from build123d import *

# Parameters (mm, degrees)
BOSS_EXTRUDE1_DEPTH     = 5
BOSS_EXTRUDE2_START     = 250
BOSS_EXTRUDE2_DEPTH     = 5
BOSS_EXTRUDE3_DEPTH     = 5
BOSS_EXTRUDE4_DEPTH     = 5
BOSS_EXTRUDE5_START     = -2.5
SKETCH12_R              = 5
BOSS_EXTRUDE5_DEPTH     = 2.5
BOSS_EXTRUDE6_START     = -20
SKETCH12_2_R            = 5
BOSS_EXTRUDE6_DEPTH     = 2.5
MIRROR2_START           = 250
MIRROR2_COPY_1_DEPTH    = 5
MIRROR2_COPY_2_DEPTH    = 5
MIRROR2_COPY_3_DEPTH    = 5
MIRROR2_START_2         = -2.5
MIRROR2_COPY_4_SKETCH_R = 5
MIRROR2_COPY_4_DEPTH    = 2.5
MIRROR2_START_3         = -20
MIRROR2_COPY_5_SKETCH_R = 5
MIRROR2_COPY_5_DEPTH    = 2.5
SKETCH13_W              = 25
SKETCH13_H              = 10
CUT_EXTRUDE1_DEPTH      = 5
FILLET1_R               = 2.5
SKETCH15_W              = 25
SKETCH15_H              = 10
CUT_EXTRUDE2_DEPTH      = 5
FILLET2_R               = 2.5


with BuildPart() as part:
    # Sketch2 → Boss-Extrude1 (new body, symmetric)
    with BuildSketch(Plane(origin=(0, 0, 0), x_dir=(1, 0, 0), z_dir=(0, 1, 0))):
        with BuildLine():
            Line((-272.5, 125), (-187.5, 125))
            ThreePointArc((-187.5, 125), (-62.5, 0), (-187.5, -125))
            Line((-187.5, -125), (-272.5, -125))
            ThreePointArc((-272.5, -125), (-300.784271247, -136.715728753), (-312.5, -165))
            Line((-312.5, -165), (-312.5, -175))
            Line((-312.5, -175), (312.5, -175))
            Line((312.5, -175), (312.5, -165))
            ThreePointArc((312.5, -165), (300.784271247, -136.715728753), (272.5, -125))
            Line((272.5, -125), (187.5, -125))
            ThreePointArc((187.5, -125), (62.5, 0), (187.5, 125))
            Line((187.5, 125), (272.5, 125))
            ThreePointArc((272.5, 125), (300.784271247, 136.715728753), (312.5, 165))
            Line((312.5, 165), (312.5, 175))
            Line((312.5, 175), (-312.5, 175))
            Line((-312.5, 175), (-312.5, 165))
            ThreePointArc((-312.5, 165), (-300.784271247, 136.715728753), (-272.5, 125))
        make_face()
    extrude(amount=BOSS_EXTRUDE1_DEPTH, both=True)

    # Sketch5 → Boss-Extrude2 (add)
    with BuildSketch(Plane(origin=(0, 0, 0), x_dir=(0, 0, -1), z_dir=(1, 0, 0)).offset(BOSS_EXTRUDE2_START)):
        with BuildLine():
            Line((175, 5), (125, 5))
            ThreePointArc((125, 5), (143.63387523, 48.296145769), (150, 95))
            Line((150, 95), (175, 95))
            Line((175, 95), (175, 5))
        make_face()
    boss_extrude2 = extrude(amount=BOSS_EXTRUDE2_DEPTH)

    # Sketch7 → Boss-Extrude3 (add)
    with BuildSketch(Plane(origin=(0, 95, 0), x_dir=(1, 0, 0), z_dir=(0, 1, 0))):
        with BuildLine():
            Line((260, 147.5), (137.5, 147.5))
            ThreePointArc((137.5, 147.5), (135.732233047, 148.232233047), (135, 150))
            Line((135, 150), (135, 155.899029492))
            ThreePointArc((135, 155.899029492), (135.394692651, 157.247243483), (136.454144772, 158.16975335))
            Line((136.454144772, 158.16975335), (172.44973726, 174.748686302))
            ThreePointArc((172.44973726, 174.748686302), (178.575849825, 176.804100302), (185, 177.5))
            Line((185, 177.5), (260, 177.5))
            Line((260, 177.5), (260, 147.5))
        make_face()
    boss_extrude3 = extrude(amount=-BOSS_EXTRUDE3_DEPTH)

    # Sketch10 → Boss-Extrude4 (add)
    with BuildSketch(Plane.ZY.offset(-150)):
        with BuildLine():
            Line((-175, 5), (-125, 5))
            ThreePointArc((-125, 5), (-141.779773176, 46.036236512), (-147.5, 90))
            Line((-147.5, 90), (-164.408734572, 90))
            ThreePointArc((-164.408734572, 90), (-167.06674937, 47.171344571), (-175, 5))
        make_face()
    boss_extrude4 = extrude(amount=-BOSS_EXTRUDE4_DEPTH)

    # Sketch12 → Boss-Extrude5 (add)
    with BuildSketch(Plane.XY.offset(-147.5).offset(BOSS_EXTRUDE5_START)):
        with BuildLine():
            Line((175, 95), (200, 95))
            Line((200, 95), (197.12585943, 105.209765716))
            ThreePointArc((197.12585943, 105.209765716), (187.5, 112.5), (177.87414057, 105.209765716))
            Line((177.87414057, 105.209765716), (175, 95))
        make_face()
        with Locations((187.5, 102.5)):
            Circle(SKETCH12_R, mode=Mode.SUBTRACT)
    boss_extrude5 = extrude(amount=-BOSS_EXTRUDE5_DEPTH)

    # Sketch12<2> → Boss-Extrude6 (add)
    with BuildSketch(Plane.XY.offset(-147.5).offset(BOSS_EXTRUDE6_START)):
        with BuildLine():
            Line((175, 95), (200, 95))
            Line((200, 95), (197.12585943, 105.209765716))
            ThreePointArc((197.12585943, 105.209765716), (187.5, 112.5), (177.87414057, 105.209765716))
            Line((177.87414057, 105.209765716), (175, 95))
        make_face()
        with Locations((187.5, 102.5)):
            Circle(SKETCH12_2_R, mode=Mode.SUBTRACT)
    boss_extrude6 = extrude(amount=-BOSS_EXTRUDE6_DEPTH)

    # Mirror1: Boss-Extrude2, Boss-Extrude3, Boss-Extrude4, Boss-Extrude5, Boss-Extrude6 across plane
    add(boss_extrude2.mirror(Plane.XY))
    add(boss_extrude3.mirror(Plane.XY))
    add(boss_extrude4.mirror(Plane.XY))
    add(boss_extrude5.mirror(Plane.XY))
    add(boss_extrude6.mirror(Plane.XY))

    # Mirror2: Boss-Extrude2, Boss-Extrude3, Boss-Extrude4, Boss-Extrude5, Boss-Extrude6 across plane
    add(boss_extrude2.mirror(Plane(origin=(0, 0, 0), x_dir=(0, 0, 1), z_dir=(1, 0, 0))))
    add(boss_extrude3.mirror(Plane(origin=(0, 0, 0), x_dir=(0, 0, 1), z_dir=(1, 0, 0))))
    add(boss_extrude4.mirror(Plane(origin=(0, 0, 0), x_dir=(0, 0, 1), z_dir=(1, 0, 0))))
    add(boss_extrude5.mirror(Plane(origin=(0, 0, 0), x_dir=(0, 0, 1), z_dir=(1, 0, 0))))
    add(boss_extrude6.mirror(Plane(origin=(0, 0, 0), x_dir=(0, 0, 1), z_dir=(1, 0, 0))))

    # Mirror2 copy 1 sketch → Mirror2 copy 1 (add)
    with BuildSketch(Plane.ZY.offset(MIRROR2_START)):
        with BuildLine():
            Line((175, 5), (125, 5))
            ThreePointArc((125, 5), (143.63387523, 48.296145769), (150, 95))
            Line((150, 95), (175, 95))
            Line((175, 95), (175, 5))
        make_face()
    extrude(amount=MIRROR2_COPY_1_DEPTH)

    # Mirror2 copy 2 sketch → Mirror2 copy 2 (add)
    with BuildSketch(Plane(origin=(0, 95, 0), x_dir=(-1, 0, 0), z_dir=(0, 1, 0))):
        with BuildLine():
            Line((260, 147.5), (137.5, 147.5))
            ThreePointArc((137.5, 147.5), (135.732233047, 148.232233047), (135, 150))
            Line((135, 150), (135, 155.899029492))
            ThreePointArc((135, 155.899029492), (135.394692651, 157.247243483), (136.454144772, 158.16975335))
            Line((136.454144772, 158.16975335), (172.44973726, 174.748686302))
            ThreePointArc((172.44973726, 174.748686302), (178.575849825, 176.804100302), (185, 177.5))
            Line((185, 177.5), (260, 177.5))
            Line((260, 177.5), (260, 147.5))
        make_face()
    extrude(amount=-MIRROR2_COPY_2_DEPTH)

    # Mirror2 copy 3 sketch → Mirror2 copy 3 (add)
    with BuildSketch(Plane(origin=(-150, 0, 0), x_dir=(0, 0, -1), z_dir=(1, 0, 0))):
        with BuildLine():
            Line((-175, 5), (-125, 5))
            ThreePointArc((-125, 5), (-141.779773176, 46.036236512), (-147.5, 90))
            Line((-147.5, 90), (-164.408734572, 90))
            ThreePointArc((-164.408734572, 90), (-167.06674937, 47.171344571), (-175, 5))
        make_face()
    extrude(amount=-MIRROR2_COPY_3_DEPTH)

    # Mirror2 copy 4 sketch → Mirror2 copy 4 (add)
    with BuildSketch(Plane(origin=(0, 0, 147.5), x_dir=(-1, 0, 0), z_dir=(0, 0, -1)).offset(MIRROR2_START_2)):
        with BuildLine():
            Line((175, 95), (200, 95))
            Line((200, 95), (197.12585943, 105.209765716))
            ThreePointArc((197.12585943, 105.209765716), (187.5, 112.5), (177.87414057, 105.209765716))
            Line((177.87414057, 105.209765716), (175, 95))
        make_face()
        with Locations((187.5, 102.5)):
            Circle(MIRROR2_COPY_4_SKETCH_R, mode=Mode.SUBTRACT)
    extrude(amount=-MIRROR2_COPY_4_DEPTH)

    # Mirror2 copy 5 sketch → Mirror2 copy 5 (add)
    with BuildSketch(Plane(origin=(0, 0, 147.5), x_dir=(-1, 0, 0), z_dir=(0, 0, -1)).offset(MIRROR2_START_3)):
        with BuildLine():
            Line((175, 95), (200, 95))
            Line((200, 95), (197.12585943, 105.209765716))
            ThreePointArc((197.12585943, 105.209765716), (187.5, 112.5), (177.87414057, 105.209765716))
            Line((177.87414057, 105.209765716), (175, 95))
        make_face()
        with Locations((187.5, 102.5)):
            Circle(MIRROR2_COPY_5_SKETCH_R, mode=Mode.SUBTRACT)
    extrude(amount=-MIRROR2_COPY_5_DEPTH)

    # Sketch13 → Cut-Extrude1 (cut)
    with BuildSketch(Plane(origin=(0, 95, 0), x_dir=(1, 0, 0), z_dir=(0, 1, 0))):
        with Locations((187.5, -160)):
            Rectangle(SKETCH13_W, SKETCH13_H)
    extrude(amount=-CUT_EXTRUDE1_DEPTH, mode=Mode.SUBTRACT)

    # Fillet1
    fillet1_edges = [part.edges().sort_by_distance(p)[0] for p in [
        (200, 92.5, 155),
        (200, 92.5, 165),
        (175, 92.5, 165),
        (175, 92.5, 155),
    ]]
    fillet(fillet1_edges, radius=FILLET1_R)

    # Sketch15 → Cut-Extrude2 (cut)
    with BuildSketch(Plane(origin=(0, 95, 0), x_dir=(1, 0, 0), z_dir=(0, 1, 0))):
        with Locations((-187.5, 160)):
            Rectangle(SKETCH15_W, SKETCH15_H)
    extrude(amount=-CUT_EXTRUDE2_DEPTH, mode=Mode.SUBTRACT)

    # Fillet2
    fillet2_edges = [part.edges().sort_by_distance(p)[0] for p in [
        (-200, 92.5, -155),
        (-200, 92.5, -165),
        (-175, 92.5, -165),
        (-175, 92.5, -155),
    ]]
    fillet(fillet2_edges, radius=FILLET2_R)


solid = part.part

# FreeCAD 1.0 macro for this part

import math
import FreeCAD as App
import Part
import Sketcher

V = App.Vector
Q = App.Units.Quantity


def edges_at(feature, points):
    """Names of the edges that pass closest to the given points."""
    edges = feature.Shape.Edges
    near = lambda p: min(range(len(edges)), key=lambda i: edges[i].distToShape(Part.Vertex(*p))[0])
    return sorted({f"Edge{near(p) + 1}" for p in points})

doc = App.newDocument("Part")
params = doc.addObject("Spreadsheet::Sheet", "Params")
for row, (alias, value) in enumerate([
    ("sketch1_radius", "125 mm"),
    ("sketch1_radius2", "40 mm"),
    ("sketch1_width", "85 mm"),
    ("sketch1_width2", "625 mm"),
    ("sketch1_height", "10 mm"),
    ("pad1_length", "10 mm"),
    ("sketch2_radius", "174.5 mm"),
    ("sketch2_width", "90 mm"),
    ("sketch2_height", "50 mm"),
    ("pad2_length", "5 mm"),
    ("sketch3_radius", "30 mm"),
    ("sketch3_radius2", "2.5 mm"),
    ("sketch3_width", "75 mm"),
    ("sketch3_width2", "122.5 mm"),
    ("pad3_length", "5 mm"),
    ("sketch4_height", "50 mm"),
    ("pad4_length", "5 mm"),
    ("sketch5_diameter", "10 mm"),
    ("sketch5_radius", "10 mm"),
    ("sketch5_width", "25 mm"),
    ("pad5_length", "2.5 mm"),
    ("sketch6_diameter", "10 mm"),
    ("sketch6_radius", "10 mm"),
    ("sketch6_width", "25 mm"),
    ("pad6_length", "2.5 mm"),
    ("sketch7_radius", "174.5 mm"),
    ("sketch7_width", "90 mm"),
    ("sketch7_height", "50 mm"),
    ("pad7_length", "5 mm"),
    ("sketch8_radius", "30 mm"),
    ("sketch8_radius2", "2.5 mm"),
    ("sketch8_width", "75 mm"),
    ("sketch8_width2", "122.5 mm"),
    ("pad8_length", "5 mm"),
    ("sketch9_height", "50 mm"),
    ("pad9_length", "5 mm"),
    ("sketch10_diameter", "10 mm"),
    ("sketch10_radius", "10 mm"),
    ("sketch10_width", "25 mm"),
    ("pad10_length", "2.5 mm"),
    ("sketch11_diameter", "10 mm"),
    ("sketch11_radius", "10 mm"),
    ("sketch11_width", "25 mm"),
    ("pad11_length", "2.5 mm"),
    ("sketch12_width", "25 mm"),
    ("sketch12_height", "10 mm"),
    ("pocket1_length", "5 mm"),
    ("fillet_radius", "2.5 mm"),
    ("sketch13_width", "25 mm"),
    ("sketch13_height", "10 mm"),
    ("pocket2_length", "5 mm"),
    ("fillet2_radius", "2.5 mm"),
], start=1):
    params.set(f"A{row}", alias)
    params.set(f"B{row}", "=" + value)
    params.setAlias(f"B{row}", alias)

body = doc.addObject("PartDesign::Body", "Body")

# Sketch on XZ plane
sketch1 = body.newObject("Sketcher::SketchObject", "Sketch")
sketch1.AttachmentSupport = (doc.getObject("XZ_Plane"), [""])
sketch1.MapMode = "FlatFace"
sketch1.addGeometry(Part.LineSegment(V(-272, -125, 0), V(-188, -125, 0)), False)
sketch1.addGeometry(Part.ArcOfCircle(Part.Circle(V(-188, 0, 0), V(0, 0, 1), 125), math.radians(-90), math.radians(90)), False)
sketch1.addGeometry(Part.LineSegment(V(-188, 125, 0), V(-272, 125, 0)), False)
sketch1.addGeometry(Part.ArcOfCircle(Part.Circle(V(-272, 165, 0), V(0, 0, 1), 40), math.radians(-180), math.radians(-90)), False)
sketch1.addGeometry(Part.LineSegment(V(-312, 165, 0), V(-312, 175, 0)), False)
sketch1.addGeometry(Part.LineSegment(V(-312, 175, 0), V(312, 175, 0)), False)
sketch1.addGeometry(Part.LineSegment(V(312, 175, 0), V(312, 165, 0)), False)
sketch1.addGeometry(Part.ArcOfCircle(Part.Circle(V(272, 165, 0), V(0, 0, 1), 40), math.radians(-90), math.radians(0)), False)
sketch1.addGeometry(Part.LineSegment(V(272, 125, 0), V(188, 125, 0)), False)
sketch1.addGeometry(Part.ArcOfCircle(Part.Circle(V(188, 0, 0), V(0, 0, 1), 125), math.radians(90), math.radians(270)), False)
sketch1.addGeometry(Part.LineSegment(V(188, -125, 0), V(272, -125, 0)), False)
sketch1.addGeometry(Part.ArcOfCircle(Part.Circle(V(272, -165, 0), V(0, 0, 1), 40), math.radians(0), math.radians(90)), False)
sketch1.addGeometry(Part.LineSegment(V(312, -165, 0), V(312, -175, 0)), False)
sketch1.addGeometry(Part.LineSegment(V(312, -175, 0), V(-312, -175, 0)), False)
sketch1.addGeometry(Part.LineSegment(V(-312, -175, 0), V(-312, -165, 0)), False)
sketch1.addGeometry(Part.ArcOfCircle(Part.Circle(V(-272, -165, 0), V(0, 0, 1), 40), math.radians(90), math.radians(180)), False)
sketch1.addConstraint(Sketcher.Constraint("Tangent", 0, 2, 1, 1))
sketch1.addConstraint(Sketcher.Constraint("Tangent", 1, 2, 2, 1))
sketch1.addConstraint(Sketcher.Constraint("Tangent", 2, 2, 3, 2))
sketch1.addConstraint(Sketcher.Constraint("Tangent", 3, 1, 4, 1))
sketch1.addConstraint(Sketcher.Constraint("Coincident", 4, 2, 5, 1))
sketch1.addConstraint(Sketcher.Constraint("Coincident", 5, 2, 6, 1))
sketch1.addConstraint(Sketcher.Constraint("Tangent", 6, 2, 7, 2))
sketch1.addConstraint(Sketcher.Constraint("Tangent", 7, 1, 8, 1))
sketch1.addConstraint(Sketcher.Constraint("Tangent", 8, 2, 9, 1))
sketch1.addConstraint(Sketcher.Constraint("Tangent", 9, 2, 10, 1))
sketch1.addConstraint(Sketcher.Constraint("Tangent", 10, 2, 11, 2))
sketch1.addConstraint(Sketcher.Constraint("Tangent", 11, 1, 12, 1))
sketch1.addConstraint(Sketcher.Constraint("Coincident", 12, 2, 13, 1))
sketch1.addConstraint(Sketcher.Constraint("Coincident", 13, 2, 14, 1))
sketch1.addConstraint(Sketcher.Constraint("Tangent", 14, 2, 15, 2))
sketch1.addConstraint(Sketcher.Constraint("Tangent", 15, 1, 0, 1))
sketch1.addConstraint(Sketcher.Constraint("Horizontal", 0))
sketch1.addConstraint(Sketcher.Constraint("Horizontal", 2))
sketch1.addConstraint(Sketcher.Constraint("Vertical", 4))
sketch1.addConstraint(Sketcher.Constraint("Horizontal", 5))
sketch1.addConstraint(Sketcher.Constraint("Vertical", 6))
sketch1.addConstraint(Sketcher.Constraint("Horizontal", 8))
sketch1.addConstraint(Sketcher.Constraint("Horizontal", 10))
sketch1.addConstraint(Sketcher.Constraint("Vertical", 12))
sketch1.addConstraint(Sketcher.Constraint("Horizontal", 13))
sketch1.addConstraint(Sketcher.Constraint("Vertical", 14))
sketch1.addConstraint(Sketcher.Constraint("Equal", 3, 7))
sketch1.addConstraint(Sketcher.Constraint("Equal", 1, 9))
sketch1.addConstraint(Sketcher.Constraint("Equal", 7, 11))
sketch1.addConstraint(Sketcher.Constraint("Equal", 11, 15))
sketch1.addConstraint(Sketcher.Constraint("Symmetric", 1, 3, 9, 3, -1, 1))
sketch1.addConstraint(Sketcher.Constraint("Symmetric", 4, 2, 12, 2, -1, 1))
sketch1.addConstraint(Sketcher.Constraint("Symmetric", 3, 3, 7, 3, -2))
sketch1.addConstraint(Sketcher.Constraint("Vertical", 3, 3, 15, 3))
sketch1.addConstraint(Sketcher.Constraint("Radius", 1, Q("125 mm")))
sketch1.addConstraint(Sketcher.Constraint("Radius", 3, Q("40 mm")))
sketch1.addConstraint(Sketcher.Constraint("DistanceX", 0, 1, 0, 2, Q("85 mm")))
sketch1.addConstraint(Sketcher.Constraint("DistanceX", 5, 1, 5, 2, Q("625 mm")))
sketch1.addConstraint(Sketcher.Constraint("DistanceY", 4, 1, 4, 2, Q("10 mm")))
sketch1.setExpression("Constraints[34]", "Params.sketch1_radius")
sketch1.setExpression("Constraints[35]", "Params.sketch1_radius2")
sketch1.setExpression("Constraints[36]", "Params.sketch1_width")
sketch1.setExpression("Constraints[37]", "Params.sketch1_width2")
sketch1.setExpression("Constraints[38]", "Params.sketch1_height")
pad1 = body.newObject("PartDesign::Pad", "Pad")
pad1.Profile = sketch1
pad1.setExpression("Length", "Params.pad1_length")
pad1.Midplane = True

# Sketch on YZ plane
sketch2 = body.newObject("Sketcher::SketchObject", "Sketch001")
sketch2.AttachmentSupport = (doc.getObject("YZ_Plane"), [""])
sketch2.MapMode = "FlatFace"
sketch2.AttachmentOffset = App.Placement(V(0, 0, 250), App.Rotation())
sketch2.addGeometry(Part.LineSegment(V(5, -125, 0), V(5, -175, 0)), False)
sketch2.addGeometry(Part.LineSegment(V(5, -175, 0), V(95, -175, 0)), False)
sketch2.addGeometry(Part.LineSegment(V(95, -175, 0), V(95, -150, 0)), False)
sketch2.addGeometry(Part.ArcOfCircle(Part.Circle(V(95, 25, 0), V(0, 0, 1), 175), math.radians(-121), math.radians(-90)), False)
sketch2.addConstraint(Sketcher.Constraint("Coincident", 0, 2, 1, 1))
sketch2.addConstraint(Sketcher.Constraint("Coincident", 1, 2, 2, 1))
sketch2.addConstraint(Sketcher.Constraint("Coincident", 2, 2, 3, 2))
sketch2.addConstraint(Sketcher.Constraint("Coincident", 3, 1, 0, 1))
sketch2.addConstraint(Sketcher.Constraint("Vertical", 0))
sketch2.addConstraint(Sketcher.Constraint("Horizontal", 1))
sketch2.addConstraint(Sketcher.Constraint("Vertical", 2))
sketch2.addConstraint(Sketcher.Constraint("Vertical", 3, 3, 1, 2))
sketch2.addConstraint(Sketcher.Constraint("Radius", 3, Q("174.5 mm")))
sketch2.addConstraint(Sketcher.Constraint("DistanceX", 1, 1, 1, 2, Q("90 mm")))
sketch2.addConstraint(Sketcher.Constraint("DistanceY", 0, 2, 0, 1, Q("50 mm")))
sketch2.addConstraint(Sketcher.Constraint("DistanceX", -1, 1, 3, 3, Q("95 mm")))
sketch2.addConstraint(Sketcher.Constraint("DistanceY", 0, 2, -1, 1, Q("175 mm")))
sketch2.setExpression("Constraints[8]", "Params.sketch2_radius")
sketch2.setExpression("Constraints[9]", "Params.sketch2_width")
sketch2.setExpression("Constraints[10]", "Params.sketch2_height")
pad2 = body.newObject("PartDesign::Pad", "Pad001")
pad2.Profile = sketch2
pad2.setExpression("Length", "Params.pad2_length")

# Sketch on XZ plane
sketch3 = body.newObject("Sketcher::SketchObject", "Sketch002")
sketch3.AttachmentSupport = (doc.getObject("XZ_Plane"), [""])
sketch3.MapMode = "FlatFace"
sketch3.AttachmentOffset = App.Placement(V(0, 0, -95), App.Rotation())
sketch3.addGeometry(Part.LineSegment(V(137.5, -147.5, 0), V(260, -147.5, 0)), False)
sketch3.addGeometry(Part.LineSegment(V(260, -147.5, 0), V(260, -177.5, 0)), False)
sketch3.addGeometry(Part.LineSegment(V(260, -177.5, 0), V(185, -177.5, 0)), False)
sketch3.addGeometry(Part.ArcOfCircle(Part.Circle(V(185, -147.5, 0), V(0, 0, 1), 30), math.radians(-115), math.radians(-90)), False)
sketch3.addGeometry(Part.LineSegment(V(172.4, -174.7, 0), V(136.5, -158.2, 0)), False)
sketch3.addGeometry(Part.ArcOfCircle(Part.Circle(V(137.5, -155.9, 0), V(0, 0, 1), 2.5), math.radians(180), math.radians(245)), False)
sketch3.addGeometry(Part.LineSegment(V(135, -155.9, 0), V(135, -150, 0)), False)
sketch3.addGeometry(Part.ArcOfCircle(Part.Circle(V(137.5, -150, 0), V(0, 0, 1), 2.5), math.radians(90), math.radians(180)), False)
sketch3.addConstraint(Sketcher.Constraint("Coincident", 0, 2, 1, 1))
sketch3.addConstraint(Sketcher.Constraint("Coincident", 1, 2, 2, 1))
sketch3.addConstraint(Sketcher.Constraint("Tangent", 2, 2, 3, 2))
sketch3.addConstraint(Sketcher.Constraint("Tangent", 3, 1, 4, 1))
sketch3.addConstraint(Sketcher.Constraint("Tangent", 4, 2, 5, 2))
sketch3.addConstraint(Sketcher.Constraint("Tangent", 5, 1, 6, 1))
sketch3.addConstraint(Sketcher.Constraint("Tangent", 6, 2, 7, 2))
sketch3.addConstraint(Sketcher.Constraint("Tangent", 7, 1, 0, 1))
sketch3.addConstraint(Sketcher.Constraint("Horizontal", 0))
sketch3.addConstraint(Sketcher.Constraint("Vertical", 1))
sketch3.addConstraint(Sketcher.Constraint("Horizontal", 2))
sketch3.addConstraint(Sketcher.Constraint("Vertical", 6))
sketch3.addConstraint(Sketcher.Constraint("Equal", 5, 7))
sketch3.addConstraint(Sketcher.Constraint("Horizontal", 3, 3, 0, 2))
sketch3.addConstraint(Sketcher.Constraint("Radius", 3, Q("30 mm")))
sketch3.addConstraint(Sketcher.Constraint("Radius", 5, Q("2.5 mm")))
sketch3.addConstraint(Sketcher.Constraint("DistanceX", 2, 2, 2, 1, Q("75 mm")))
sketch3.addConstraint(Sketcher.Constraint("DistanceX", 0, 1, 0, 2, Q("122.5 mm")))
sketch3.addConstraint(Sketcher.Constraint("DistanceX", -1, 1, 3, 3, Q("185 mm")))
sketch3.addConstraint(Sketcher.Constraint("DistanceY", 7, 3, -1, 1, Q("150 mm")))
sketch3.addConstraint(Sketcher.Constraint("DistanceY", 6, 1, 6, 2, Q("5.899029 mm")))
sketch3.setExpression("Constraints[14]", "Params.sketch3_radius")
sketch3.setExpression("Constraints[15]", "Params.sketch3_radius2")
sketch3.setExpression("Constraints[16]", "Params.sketch3_width")
sketch3.setExpression("Constraints[17]", "Params.sketch3_width2")
pad3 = body.newObject("PartDesign::Pad", "Pad002")
pad3.Profile = sketch3
pad3.setExpression("Length", "Params.pad3_length")

# Sketch on YZ plane
sketch4 = body.newObject("Sketcher::SketchObject", "Sketch003")
sketch4.AttachmentSupport = (doc.getObject("YZ_Plane"), [""])
sketch4.MapMode = "FlatFace"
sketch4.AttachmentOffset = App.Placement(V(0, 0, 150), App.Rotation())
sketch4.addGeometry(Part.LineSegment(V(5, -175, 0), V(5, -125, 0)), False)
sketch4.addGeometry(Part.ArcOfCircle(Part.Circle(V(90, 24, 0), V(0, 0, 1), 172), math.radians(-120), math.radians(-90)), False)
sketch4.addGeometry(Part.LineSegment(V(90, -148, 0), V(90, -164, 0)), False)
sketch4.addGeometry(Part.ArcOfCircle(Part.Circle(V(90, -511, 0), V(0, 0, 1), 346), math.radians(90), math.radians(104.21)), False)
sketch4.addConstraint(Sketcher.Constraint("Coincident", 0, 2, 1, 1))
sketch4.addConstraint(Sketcher.Constraint("Coincident", 1, 2, 2, 1))
sketch4.addConstraint(Sketcher.Constraint("Coincident", 2, 2, 3, 1))
sketch4.addConstraint(Sketcher.Constraint("Coincident", 3, 2, 0, 1))
sketch4.addConstraint(Sketcher.Constraint("Vertical", 0))
sketch4.addConstraint(Sketcher.Constraint("Vertical", 2))
sketch4.addConstraint(Sketcher.Constraint("Vertical", 1, 3, 3, 3))
sketch4.addConstraint(Sketcher.Constraint("Vertical", 3, 3, 1, 2))
sketch4.addConstraint(Sketcher.Constraint("DistanceY", 0, 1, 0, 2, Q("50 mm")))
sketch4.addConstraint(Sketcher.Constraint("DistanceX", -1, 1, 1, 3, Q("90 mm")))
sketch4.addConstraint(Sketcher.Constraint("DistanceX", -1, 1, 0, 2, Q("5 mm")))
sketch4.addConstraint(Sketcher.Constraint("DistanceY", 0, 2, -1, 1, Q("125 mm")))
sketch4.addConstraint(Sketcher.Constraint("DistanceY", 1, 2, -1, 1, Q("147.5 mm")))
sketch4.addConstraint(Sketcher.Constraint("Radius", 3, Q("346.378577 mm")))
sketch4.setExpression("Constraints[8]", "Params.sketch4_height")
pad4 = body.newObject("PartDesign::Pad", "Pad003")
pad4.Profile = sketch4
pad4.setExpression("Length", "Params.pad4_length")

# Sketch on XY plane
sketch5 = body.newObject("Sketcher::SketchObject", "Sketch004")
sketch5.AttachmentSupport = (doc.getObject("XY_Plane"), [""])
sketch5.MapMode = "FlatFace"
sketch5.AttachmentOffset = App.Placement(V(0, 0, -150), App.Rotation())
sketch5.addGeometry(Part.LineSegment(V(175, 95, 0), V(200, 95, 0)), False)
sketch5.addGeometry(Part.LineSegment(V(200, 95, 0), V(197, 105, 0)), False)
sketch5.addGeometry(Part.ArcOfCircle(Part.Circle(V(188, 102, 0), V(0, 0, 1), 10), math.radians(16), math.radians(164)), False)
sketch5.addGeometry(Part.LineSegment(V(178, 105, 0), V(175, 95, 0)), False)
sketch5.addGeometry(Part.Circle(V(188, 102, 0), V(0, 0, 1), 5), False)
sketch5.addConstraint(Sketcher.Constraint("Coincident", 0, 2, 1, 1))
sketch5.addConstraint(Sketcher.Constraint("Tangent", 1, 2, 2, 1))
sketch5.addConstraint(Sketcher.Constraint("Tangent", 2, 2, 3, 1))
sketch5.addConstraint(Sketcher.Constraint("Coincident", 3, 2, 0, 1))
sketch5.addConstraint(Sketcher.Constraint("Horizontal", 0))
sketch5.addConstraint(Sketcher.Constraint("Coincident", 4, 3, 2, 3))
sketch5.addConstraint(Sketcher.Constraint("Horizontal", 1, 2, 2, 2))
sketch5.addConstraint(Sketcher.Constraint("Diameter", 4, Q("10 mm")))
sketch5.addConstraint(Sketcher.Constraint("Radius", 2, Q("10 mm")))
sketch5.addConstraint(Sketcher.Constraint("DistanceX", 0, 1, 0, 2, Q("25 mm")))
sketch5.addConstraint(Sketcher.Constraint("DistanceX", -1, 1, 0, 2, Q("200 mm")))
sketch5.addConstraint(Sketcher.Constraint("DistanceY", -1, 1, 0, 2, Q("95 mm")))
sketch5.addConstraint(Sketcher.Constraint("DistanceY", -1, 1, 2, 3, Q("102.5 mm")))
sketch5.setExpression("Constraints[7]", "Params.sketch5_diameter")
sketch5.setExpression("Constraints[8]", "Params.sketch5_radius")
sketch5.setExpression("Constraints[9]", "Params.sketch5_width")
pad5 = body.newObject("PartDesign::Pad", "Pad004")
pad5.Profile = sketch5
pad5.setExpression("Length", "Params.pad5_length")
pad5.Reversed = True

# Sketch on XY plane
sketch6 = body.newObject("Sketcher::SketchObject", "Sketch005")
sketch6.AttachmentSupport = (doc.getObject("XY_Plane"), [""])
sketch6.MapMode = "FlatFace"
sketch6.AttachmentOffset = App.Placement(V(0, 0, -167.5), App.Rotation())
sketch6.addGeometry(Part.LineSegment(V(175, 95, 0), V(200, 95, 0)), False)
sketch6.addGeometry(Part.LineSegment(V(200, 95, 0), V(197, 105, 0)), False)
sketch6.addGeometry(Part.ArcOfCircle(Part.Circle(V(188, 102, 0), V(0, 0, 1), 10), math.radians(16), math.radians(164)), False)
sketch6.addGeometry(Part.LineSegment(V(178, 105, 0), V(175, 95, 0)), False)
sketch6.addGeometry(Part.Circle(V(188, 102, 0), V(0, 0, 1), 5), False)
sketch6.addConstraint(Sketcher.Constraint("Coincident", 0, 2, 1, 1))
sketch6.addConstraint(Sketcher.Constraint("Tangent", 1, 2, 2, 1))
sketch6.addConstraint(Sketcher.Constraint("Tangent", 2, 2, 3, 1))
sketch6.addConstraint(Sketcher.Constraint("Coincident", 3, 2, 0, 1))
sketch6.addConstraint(Sketcher.Constraint("Horizontal", 0))
sketch6.addConstraint(Sketcher.Constraint("Coincident", 4, 3, 2, 3))
sketch6.addConstraint(Sketcher.Constraint("Horizontal", 1, 2, 2, 2))
sketch6.addConstraint(Sketcher.Constraint("Diameter", 4, Q("10 mm")))
sketch6.addConstraint(Sketcher.Constraint("Radius", 2, Q("10 mm")))
sketch6.addConstraint(Sketcher.Constraint("DistanceX", 0, 1, 0, 2, Q("25 mm")))
sketch6.addConstraint(Sketcher.Constraint("DistanceX", -1, 1, 0, 2, Q("200 mm")))
sketch6.addConstraint(Sketcher.Constraint("DistanceY", -1, 1, 0, 2, Q("95 mm")))
sketch6.addConstraint(Sketcher.Constraint("DistanceY", -1, 1, 2, 3, Q("102.5 mm")))
sketch6.setExpression("Constraints[7]", "Params.sketch6_diameter")
sketch6.setExpression("Constraints[8]", "Params.sketch6_radius")
sketch6.setExpression("Constraints[9]", "Params.sketch6_width")
pad6 = body.newObject("PartDesign::Pad", "Pad005")
pad6.Profile = sketch6
pad6.setExpression("Length", "Params.pad6_length")
pad6.Reversed = True
doc.recompute()

mirrored = body.newObject("PartDesign::Mirrored", "Mirrored")
mirrored.Originals = [pad2, pad3, pad4, pad5, pad6]
mirrored.MirrorPlane = (doc.getObject("XY_Plane"), [""])
body.Tip = mirrored
doc.recompute()

mirrored2 = body.newObject("PartDesign::Mirrored", "Mirrored001")
mirrored2.Originals = [pad2, pad3, pad4, pad5, pad6]
mirrored2.MirrorPlane = (doc.getObject("YZ_Plane"), [""])
body.Tip = mirrored2

# Sketch on YZ plane
sketch7 = body.newObject("Sketcher::SketchObject", "Sketch006")
sketch7.AttachmentSupport = (doc.getObject("YZ_Plane"), [""])
sketch7.MapMode = "FlatFace"
sketch7.AttachmentOffset = App.Placement(V(0, 0, -250), App.Rotation())
sketch7.addGeometry(Part.LineSegment(V(5, 125, 0), V(5, 175, 0)), False)
sketch7.addGeometry(Part.LineSegment(V(5, 175, 0), V(95, 175, 0)), False)
sketch7.addGeometry(Part.LineSegment(V(95, 175, 0), V(95, 150, 0)), False)
sketch7.addGeometry(Part.ArcOfCircle(Part.Circle(V(95, -25, 0), V(0, 0, 1), 175), math.radians(90), math.radians(121)), False)
sketch7.addConstraint(Sketcher.Constraint("Coincident", 0, 2, 1, 1))
sketch7.addConstraint(Sketcher.Constraint("Coincident", 1, 2, 2, 1))
sketch7.addConstraint(Sketcher.Constraint("Coincident", 2, 2, 3, 1))
sketch7.addConstraint(Sketcher.Constraint("Coincident", 3, 2, 0, 1))
sketch7.addConstraint(Sketcher.Constraint("Vertical", 0))
sketch7.addConstraint(Sketcher.Constraint("Horizontal", 1))
sketch7.addConstraint(Sketcher.Constraint("Vertical", 2))
sketch7.addConstraint(Sketcher.Constraint("Vertical", 3, 3, 1, 2))
sketch7.addConstraint(Sketcher.Constraint("Radius", 3, Q("174.5 mm")))
sketch7.addConstraint(Sketcher.Constraint("DistanceX", 1, 1, 1, 2, Q("90 mm")))
sketch7.addConstraint(Sketcher.Constraint("DistanceY", 0, 1, 0, 2, Q("50 mm")))
sketch7.addConstraint(Sketcher.Constraint("DistanceX", -1, 1, 3, 3, Q("95 mm")))
sketch7.addConstraint(Sketcher.Constraint("DistanceY", -1, 1, 0, 2, Q("175 mm")))
sketch7.setExpression("Constraints[8]", "Params.sketch7_radius")
sketch7.setExpression("Constraints[9]", "Params.sketch7_width")
sketch7.setExpression("Constraints[10]", "Params.sketch7_height")
pad7 = body.newObject("PartDesign::Pad", "Pad006")
pad7.Profile = sketch7
pad7.setExpression("Length", "Params.pad7_length")
pad7.Reversed = True

# Sketch on XZ plane
sketch8 = body.newObject("Sketcher::SketchObject", "Sketch007")
sketch8.AttachmentSupport = (doc.getObject("XZ_Plane"), [""])
sketch8.MapMode = "FlatFace"
sketch8.AttachmentOffset = App.Placement(V(0, 0, -95), App.Rotation())
sketch8.addGeometry(Part.LineSegment(V(-137.5, 147.5, 0), V(-260, 147.5, 0)), False)
sketch8.addGeometry(Part.LineSegment(V(-260, 147.5, 0), V(-260, 177.5, 0)), False)
sketch8.addGeometry(Part.LineSegment(V(-260, 177.5, 0), V(-185, 177.5, 0)), False)
sketch8.addGeometry(Part.ArcOfCircle(Part.Circle(V(-185, 147.5, 0), V(0, 0, 1), 30), math.radians(65), math.radians(90)), False)
sketch8.addGeometry(Part.LineSegment(V(-172.4, 174.7, 0), V(-136.5, 158.2, 0)), False)
sketch8.addGeometry(Part.ArcOfCircle(Part.Circle(V(-137.5, 155.9, 0), V(0, 0, 1), 2.5), math.radians(0), math.radians(65)), False)
sketch8.addGeometry(Part.LineSegment(V(-135, 155.9, 0), V(-135, 150, 0)), False)
sketch8.addGeometry(Part.ArcOfCircle(Part.Circle(V(-137.5, 150, 0), V(0, 0, 1), 2.5), math.radians(-90), math.radians(0)), False)
sketch8.addConstraint(Sketcher.Constraint("Coincident", 0, 2, 1, 1))
sketch8.addConstraint(Sketcher.Constraint("Coincident", 1, 2, 2, 1))
sketch8.addConstraint(Sketcher.Constraint("Tangent", 2, 2, 3, 2))
sketch8.addConstraint(Sketcher.Constraint("Tangent", 3, 1, 4, 1))
sketch8.addConstraint(Sketcher.Constraint("Tangent", 4, 2, 5, 2))
sketch8.addConstraint(Sketcher.Constraint("Tangent", 5, 1, 6, 1))
sketch8.addConstraint(Sketcher.Constraint("Tangent", 6, 2, 7, 2))
sketch8.addConstraint(Sketcher.Constraint("Tangent", 7, 1, 0, 1))
sketch8.addConstraint(Sketcher.Constraint("Horizontal", 0))
sketch8.addConstraint(Sketcher.Constraint("Vertical", 1))
sketch8.addConstraint(Sketcher.Constraint("Horizontal", 2))
sketch8.addConstraint(Sketcher.Constraint("Vertical", 6))
sketch8.addConstraint(Sketcher.Constraint("Equal", 5, 7))
sketch8.addConstraint(Sketcher.Constraint("Horizontal", 3, 3, 0, 2))
sketch8.addConstraint(Sketcher.Constraint("Radius", 3, Q("30 mm")))
sketch8.addConstraint(Sketcher.Constraint("Radius", 5, Q("2.5 mm")))
sketch8.addConstraint(Sketcher.Constraint("DistanceX", 2, 1, 2, 2, Q("75 mm")))
sketch8.addConstraint(Sketcher.Constraint("DistanceX", 0, 2, 0, 1, Q("122.5 mm")))
sketch8.addConstraint(Sketcher.Constraint("DistanceX", 3, 3, -1, 1, Q("185 mm")))
sketch8.addConstraint(Sketcher.Constraint("DistanceY", -1, 1, 7, 3, Q("150 mm")))
sketch8.addConstraint(Sketcher.Constraint("DistanceY", 6, 2, 6, 1, Q("5.899029 mm")))
sketch8.setExpression("Constraints[14]", "Params.sketch8_radius")
sketch8.setExpression("Constraints[15]", "Params.sketch8_radius2")
sketch8.setExpression("Constraints[16]", "Params.sketch8_width")
sketch8.setExpression("Constraints[17]", "Params.sketch8_width2")
pad8 = body.newObject("PartDesign::Pad", "Pad007")
pad8.Profile = sketch8
pad8.setExpression("Length", "Params.pad8_length")

# Sketch on YZ plane
sketch9 = body.newObject("Sketcher::SketchObject", "Sketch008")
sketch9.AttachmentSupport = (doc.getObject("YZ_Plane"), [""])
sketch9.MapMode = "FlatFace"
sketch9.AttachmentOffset = App.Placement(V(0, 0, -150), App.Rotation())
sketch9.addGeometry(Part.LineSegment(V(5, 175, 0), V(5, 125, 0)), False)
sketch9.addGeometry(Part.ArcOfCircle(Part.Circle(V(90, -24, 0), V(0, 0, 1), 172), math.radians(90), math.radians(120)), False)
sketch9.addGeometry(Part.LineSegment(V(90, 148, 0), V(90, 164, 0)), False)
sketch9.addGeometry(Part.ArcOfCircle(Part.Circle(V(90, 511, 0), V(0, 0, 1), 346), math.radians(-104.21), math.radians(-90)), False)
sketch9.addConstraint(Sketcher.Constraint("Coincident", 0, 2, 1, 2))
sketch9.addConstraint(Sketcher.Constraint("Coincident", 1, 1, 2, 1))
sketch9.addConstraint(Sketcher.Constraint("Coincident", 2, 2, 3, 2))
sketch9.addConstraint(Sketcher.Constraint("Coincident", 3, 1, 0, 1))
sketch9.addConstraint(Sketcher.Constraint("Vertical", 0))
sketch9.addConstraint(Sketcher.Constraint("Vertical", 2))
sketch9.addConstraint(Sketcher.Constraint("Vertical", 1, 3, 3, 3))
sketch9.addConstraint(Sketcher.Constraint("Vertical", 3, 3, 1, 1))
sketch9.addConstraint(Sketcher.Constraint("DistanceY", 0, 2, 0, 1, Q("50 mm")))
sketch9.addConstraint(Sketcher.Constraint("DistanceX", -1, 1, 1, 3, Q("90 mm")))
sketch9.addConstraint(Sketcher.Constraint("DistanceX", -1, 1, 0, 2, Q("5 mm")))
sketch9.addConstraint(Sketcher.Constraint("DistanceY", -1, 1, 0, 2, Q("125 mm")))
sketch9.addConstraint(Sketcher.Constraint("DistanceY", -1, 1, 1, 1, Q("147.5 mm")))
sketch9.addConstraint(Sketcher.Constraint("Radius", 3, Q("346.378577 mm")))
sketch9.setExpression("Constraints[8]", "Params.sketch9_height")
pad9 = body.newObject("PartDesign::Pad", "Pad008")
pad9.Profile = sketch9
pad9.setExpression("Length", "Params.pad9_length")
pad9.Reversed = True

# Sketch on XY plane
sketch10 = body.newObject("Sketcher::SketchObject", "Sketch009")
sketch10.AttachmentSupport = (doc.getObject("XY_Plane"), [""])
sketch10.MapMode = "FlatFace"
sketch10.AttachmentOffset = App.Placement(V(0, 0, 150), App.Rotation())
sketch10.addGeometry(Part.LineSegment(V(-175, 95, 0), V(-200, 95, 0)), False)
sketch10.addGeometry(Part.LineSegment(V(-200, 95, 0), V(-197, 105, 0)), False)
sketch10.addGeometry(Part.ArcOfCircle(Part.Circle(V(-188, 102, 0), V(0, 0, 1), 10), math.radians(16), math.radians(164)), False)
sketch10.addGeometry(Part.LineSegment(V(-178, 105, 0), V(-175, 95, 0)), False)
sketch10.addGeometry(Part.Circle(V(-188, 102, 0), V(0, 0, 1), 5), False)
sketch10.addConstraint(Sketcher.Constraint("Coincident", 0, 2, 1, 1))
sketch10.addConstraint(Sketcher.Constraint("Tangent", 1, 2, 2, 2))
sketch10.addConstraint(Sketcher.Constraint("Tangent", 2, 1, 3, 1))
sketch10.addConstraint(Sketcher.Constraint("Coincident", 3, 2, 0, 1))
sketch10.addConstraint(Sketcher.Constraint("Horizontal", 0))
sketch10.addConstraint(Sketcher.Constraint("Coincident", 4, 3, 2, 3))
sketch10.addConstraint(Sketcher.Constraint("Horizontal", 1, 2, 2, 1))
sketch10.addConstraint(Sketcher.Constraint("Diameter", 4, Q("10 mm")))
sketch10.addConstraint(Sketcher.Constraint("Radius", 2, Q("10 mm")))
sketch10.addConstraint(Sketcher.Constraint("DistanceX", 0, 2, 0, 1, Q("25 mm")))
sketch10.addConstraint(Sketcher.Constraint("DistanceX", 0, 2, -1, 1, Q("200 mm")))
sketch10.addConstraint(Sketcher.Constraint("DistanceY", -1, 1, 0, 2, Q("95 mm")))
sketch10.addConstraint(Sketcher.Constraint("DistanceY", -1, 1, 2, 3, Q("102.5 mm")))
sketch10.setExpression("Constraints[7]", "Params.sketch10_diameter")
sketch10.setExpression("Constraints[8]", "Params.sketch10_radius")
sketch10.setExpression("Constraints[9]", "Params.sketch10_width")
pad10 = body.newObject("PartDesign::Pad", "Pad009")
pad10.Profile = sketch10
pad10.setExpression("Length", "Params.pad10_length")

# Sketch on XY plane
sketch11 = body.newObject("Sketcher::SketchObject", "Sketch010")
sketch11.AttachmentSupport = (doc.getObject("XY_Plane"), [""])
sketch11.MapMode = "FlatFace"
sketch11.AttachmentOffset = App.Placement(V(0, 0, 167.5), App.Rotation())
sketch11.addGeometry(Part.LineSegment(V(-175, 95, 0), V(-200, 95, 0)), False)
sketch11.addGeometry(Part.LineSegment(V(-200, 95, 0), V(-197, 105, 0)), False)
sketch11.addGeometry(Part.ArcOfCircle(Part.Circle(V(-188, 102, 0), V(0, 0, 1), 10), math.radians(16), math.radians(164)), False)
sketch11.addGeometry(Part.LineSegment(V(-178, 105, 0), V(-175, 95, 0)), False)
sketch11.addGeometry(Part.Circle(V(-188, 102, 0), V(0, 0, 1), 5), False)
sketch11.addConstraint(Sketcher.Constraint("Coincident", 0, 2, 1, 1))
sketch11.addConstraint(Sketcher.Constraint("Tangent", 1, 2, 2, 2))
sketch11.addConstraint(Sketcher.Constraint("Tangent", 2, 1, 3, 1))
sketch11.addConstraint(Sketcher.Constraint("Coincident", 3, 2, 0, 1))
sketch11.addConstraint(Sketcher.Constraint("Horizontal", 0))
sketch11.addConstraint(Sketcher.Constraint("Coincident", 4, 3, 2, 3))
sketch11.addConstraint(Sketcher.Constraint("Horizontal", 1, 2, 2, 1))
sketch11.addConstraint(Sketcher.Constraint("Diameter", 4, Q("10 mm")))
sketch11.addConstraint(Sketcher.Constraint("Radius", 2, Q("10 mm")))
sketch11.addConstraint(Sketcher.Constraint("DistanceX", 0, 2, 0, 1, Q("25 mm")))
sketch11.addConstraint(Sketcher.Constraint("DistanceX", 0, 2, -1, 1, Q("200 mm")))
sketch11.addConstraint(Sketcher.Constraint("DistanceY", -1, 1, 0, 2, Q("95 mm")))
sketch11.addConstraint(Sketcher.Constraint("DistanceY", -1, 1, 2, 3, Q("102.5 mm")))
sketch11.setExpression("Constraints[7]", "Params.sketch11_diameter")
sketch11.setExpression("Constraints[8]", "Params.sketch11_radius")
sketch11.setExpression("Constraints[9]", "Params.sketch11_width")
pad11 = body.newObject("PartDesign::Pad", "Pad010")
pad11.Profile = sketch11
pad11.setExpression("Length", "Params.pad11_length")

# Sketch on XZ plane
sketch12 = body.newObject("Sketcher::SketchObject", "Sketch011")
sketch12.AttachmentSupport = (doc.getObject("XZ_Plane"), [""])
sketch12.MapMode = "FlatFace"
sketch12.AttachmentOffset = App.Placement(V(0, 0, -95), App.Rotation())
sketch12.addGeometry(Part.LineSegment(V(175, 155, 0), V(175, 165, 0)), False)
sketch12.addGeometry(Part.LineSegment(V(175, 165, 0), V(200, 165, 0)), False)
sketch12.addGeometry(Part.LineSegment(V(200, 165, 0), V(200, 155, 0)), False)
sketch12.addGeometry(Part.LineSegment(V(200, 155, 0), V(175, 155, 0)), False)
sketch12.addConstraint(Sketcher.Constraint("Coincident", 0, 2, 1, 1))
sketch12.addConstraint(Sketcher.Constraint("Coincident", 1, 2, 2, 1))
sketch12.addConstraint(Sketcher.Constraint("Coincident", 2, 2, 3, 1))
sketch12.addConstraint(Sketcher.Constraint("Coincident", 3, 2, 0, 1))
sketch12.addConstraint(Sketcher.Constraint("Vertical", 0))
sketch12.addConstraint(Sketcher.Constraint("Horizontal", 1))
sketch12.addConstraint(Sketcher.Constraint("Vertical", 2))
sketch12.addConstraint(Sketcher.Constraint("Horizontal", 3))
sketch12.addConstraint(Sketcher.Constraint("DistanceX", 1, 1, 1, 2, Q("25 mm")))
sketch12.addConstraint(Sketcher.Constraint("DistanceY", 0, 1, 0, 2, Q("10 mm")))
sketch12.addConstraint(Sketcher.Constraint("DistanceX", -1, 1, 0, 2, Q("175 mm")))
sketch12.addConstraint(Sketcher.Constraint("DistanceY", -1, 1, 0, 2, Q("165 mm")))
sketch12.setExpression("Constraints[8]", "Params.sketch12_width")
sketch12.setExpression("Constraints[9]", "Params.sketch12_height")
pocket1 = body.newObject("PartDesign::Pocket", "Pocket")
pocket1.Profile = sketch12
pocket1.setExpression("Length", "Params.pocket1_length")
pocket1.Reversed = True
doc.recompute()

fillet = body.newObject("PartDesign::Fillet", "Fillet")
fillet.Base = (pocket1, edges_at(pocket1, [
    (200, 92.5, 155),
    (200, 92.5, 165),
    (175, 92.5, 165),
    (175, 92.5, 155),
]))
fillet.setExpression("Radius", "Params.fillet_radius")

# Sketch on XZ plane
sketch13 = body.newObject("Sketcher::SketchObject", "Sketch012")
sketch13.AttachmentSupport = (doc.getObject("XZ_Plane"), [""])
sketch13.MapMode = "FlatFace"
sketch13.AttachmentOffset = App.Placement(V(0, 0, -95), App.Rotation())
sketch13.addGeometry(Part.LineSegment(V(-200, -165, 0), V(-200, -155, 0)), False)
sketch13.addGeometry(Part.LineSegment(V(-200, -155, 0), V(-175, -155, 0)), False)
sketch13.addGeometry(Part.LineSegment(V(-175, -155, 0), V(-175, -165, 0)), False)
sketch13.addGeometry(Part.LineSegment(V(-175, -165, 0), V(-200, -165, 0)), False)
sketch13.addConstraint(Sketcher.Constraint("Coincident", 0, 2, 1, 1))
sketch13.addConstraint(Sketcher.Constraint("Coincident", 1, 2, 2, 1))
sketch13.addConstraint(Sketcher.Constraint("Coincident", 2, 2, 3, 1))
sketch13.addConstraint(Sketcher.Constraint("Coincident", 3, 2, 0, 1))
sketch13.addConstraint(Sketcher.Constraint("Vertical", 0))
sketch13.addConstraint(Sketcher.Constraint("Horizontal", 1))
sketch13.addConstraint(Sketcher.Constraint("Vertical", 2))
sketch13.addConstraint(Sketcher.Constraint("Horizontal", 3))
sketch13.addConstraint(Sketcher.Constraint("DistanceX", 1, 1, 1, 2, Q("25 mm")))
sketch13.addConstraint(Sketcher.Constraint("DistanceY", 0, 1, 0, 2, Q("10 mm")))
sketch13.addConstraint(Sketcher.Constraint("DistanceX", 0, 2, -1, 1, Q("200 mm")))
sketch13.addConstraint(Sketcher.Constraint("DistanceY", 0, 2, -1, 1, Q("155 mm")))
sketch13.setExpression("Constraints[8]", "Params.sketch13_width")
sketch13.setExpression("Constraints[9]", "Params.sketch13_height")
pocket2 = body.newObject("PartDesign::Pocket", "Pocket001")
pocket2.Profile = sketch13
pocket2.setExpression("Length", "Params.pocket2_length")
pocket2.Reversed = True
doc.recompute()

fillet2 = body.newObject("PartDesign::Fillet", "Fillet001")
fillet2.Base = (pocket2, edges_at(pocket2, [
    (-200, 92.5, -155),
    (-200, 92.5, -165),
    (-175, 92.5, -165),
    (-175, 92.5, -155),
]))
fillet2.setExpression("Radius", "Params.fillet2_radius")

doc.recompute()
